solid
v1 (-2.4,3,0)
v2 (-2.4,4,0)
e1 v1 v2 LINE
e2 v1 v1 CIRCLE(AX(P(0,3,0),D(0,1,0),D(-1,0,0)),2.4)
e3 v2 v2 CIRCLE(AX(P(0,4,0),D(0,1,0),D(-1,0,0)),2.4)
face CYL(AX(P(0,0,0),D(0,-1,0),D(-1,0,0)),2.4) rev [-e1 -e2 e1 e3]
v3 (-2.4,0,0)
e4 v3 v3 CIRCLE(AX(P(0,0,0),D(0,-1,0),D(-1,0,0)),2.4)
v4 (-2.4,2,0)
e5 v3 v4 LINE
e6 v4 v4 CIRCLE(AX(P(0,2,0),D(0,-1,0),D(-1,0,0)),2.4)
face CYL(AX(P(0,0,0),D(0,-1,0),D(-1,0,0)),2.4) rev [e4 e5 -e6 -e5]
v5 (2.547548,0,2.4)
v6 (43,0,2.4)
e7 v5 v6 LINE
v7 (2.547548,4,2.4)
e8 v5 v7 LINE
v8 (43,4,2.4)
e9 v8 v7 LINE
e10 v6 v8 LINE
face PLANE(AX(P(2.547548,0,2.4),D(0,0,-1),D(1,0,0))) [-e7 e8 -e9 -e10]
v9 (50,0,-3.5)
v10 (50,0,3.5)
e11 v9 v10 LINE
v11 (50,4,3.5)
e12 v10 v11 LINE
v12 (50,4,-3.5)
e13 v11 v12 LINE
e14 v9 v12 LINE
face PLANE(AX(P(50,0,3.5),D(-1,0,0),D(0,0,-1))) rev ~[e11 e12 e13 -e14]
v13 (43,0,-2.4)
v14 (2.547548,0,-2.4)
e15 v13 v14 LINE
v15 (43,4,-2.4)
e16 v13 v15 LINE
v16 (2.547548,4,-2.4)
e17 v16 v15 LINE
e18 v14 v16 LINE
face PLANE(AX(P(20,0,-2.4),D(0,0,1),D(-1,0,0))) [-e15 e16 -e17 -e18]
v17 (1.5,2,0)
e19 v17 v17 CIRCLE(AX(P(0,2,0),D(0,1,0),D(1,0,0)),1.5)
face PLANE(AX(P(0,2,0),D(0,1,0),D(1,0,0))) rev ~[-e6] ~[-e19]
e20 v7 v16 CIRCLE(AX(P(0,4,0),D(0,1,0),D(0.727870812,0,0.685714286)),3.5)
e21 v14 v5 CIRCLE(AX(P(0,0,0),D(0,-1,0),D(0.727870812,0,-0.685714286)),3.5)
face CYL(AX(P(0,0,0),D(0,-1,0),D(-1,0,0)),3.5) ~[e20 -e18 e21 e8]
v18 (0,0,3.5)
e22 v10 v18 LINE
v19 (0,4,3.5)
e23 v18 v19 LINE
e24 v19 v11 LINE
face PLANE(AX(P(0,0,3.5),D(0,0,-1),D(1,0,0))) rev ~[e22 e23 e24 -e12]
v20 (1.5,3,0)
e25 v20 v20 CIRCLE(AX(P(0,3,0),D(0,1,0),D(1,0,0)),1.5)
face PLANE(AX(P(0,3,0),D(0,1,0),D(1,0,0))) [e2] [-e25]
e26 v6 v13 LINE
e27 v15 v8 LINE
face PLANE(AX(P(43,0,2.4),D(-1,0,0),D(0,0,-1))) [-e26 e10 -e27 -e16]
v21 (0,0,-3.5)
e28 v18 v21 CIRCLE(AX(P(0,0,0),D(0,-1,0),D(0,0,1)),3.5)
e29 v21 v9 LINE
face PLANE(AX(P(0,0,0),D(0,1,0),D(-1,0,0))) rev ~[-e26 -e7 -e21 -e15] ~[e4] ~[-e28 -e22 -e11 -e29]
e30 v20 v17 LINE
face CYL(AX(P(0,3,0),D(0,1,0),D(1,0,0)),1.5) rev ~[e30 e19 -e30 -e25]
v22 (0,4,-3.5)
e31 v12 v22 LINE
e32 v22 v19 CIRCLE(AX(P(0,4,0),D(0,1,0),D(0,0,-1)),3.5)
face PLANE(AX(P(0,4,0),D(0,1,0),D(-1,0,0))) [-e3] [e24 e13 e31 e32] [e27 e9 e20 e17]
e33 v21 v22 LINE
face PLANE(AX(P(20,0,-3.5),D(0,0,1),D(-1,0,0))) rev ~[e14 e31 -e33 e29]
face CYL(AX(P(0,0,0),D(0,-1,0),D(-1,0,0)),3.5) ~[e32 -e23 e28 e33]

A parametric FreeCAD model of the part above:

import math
import FreeCAD as App
import Part
import Sketcher

V = App.Vector

doc = App.newDocument("Part")
body = doc.addObject("PartDesign::Body", "Body")

sketch1 = body.newObject("Sketcher::SketchObject", "Sketch")
sketch1.AttachmentSupport = (doc.getObject("XZ_Plane"), [""])
sketch1.MapMode = "FlatFace"
sketch1.addGeometry(Part.LineSegment(V(0, 3.5, 0), V(50, 3.5, 0)), False)
sketch1.addGeometry(Part.LineSegment(V(50, 3.5, 0), V(50, -3.5, 0)), False)
sketch1.addGeometry(Part.LineSegment(V(50, -3.5, 0), V(0, -3.5, 0)), False)
sketch1.addGeometry(Part.ArcOfCircle(Part.Circle(V(0, 0, 0), V(0, 0, 1), 3.5), math.radians(90), math.radians(270)), False)
sketch1.addGeometry(Part.Circle(V(0, 0, 0), V(0, 0, 1), 2.4), False)
sketch1.addGeometry(Part.ArcOfCircle(Part.Circle(V(0, 0, 0), V(0, 0, 1), 3.5), math.radians(-43), math.radians(43)), False)
sketch1.addGeometry(Part.LineSegment(V(2.5, -2.4, 0), V(43, -2.4, 0)), False)
sketch1.addGeometry(Part.LineSegment(V(43, -2.4, 0), V(43, 2.4, 0)), False)
sketch1.addGeometry(Part.LineSegment(V(43, 2.4, 0), V(2.5, 2.4, 0)), False)
sketch1.addConstraint(Sketcher.Constraint("Coincident", 0, 2, 1, 1))
sketch1.addConstraint(Sketcher.Constraint("Coincident", 1, 2, 2, 1))
sketch1.addConstraint(Sketcher.Constraint("Tangent", 2, 2, 3, 2))
sketch1.addConstraint(Sketcher.Constraint("Tangent", 3, 1, 0, 1))
sketch1.addConstraint(Sketcher.Constraint("Coincident", 5, 1, 6, 1))
sketch1.addConstraint(Sketcher.Constraint("Coincident", 6, 2, 7, 1))
sketch1.addConstraint(Sketcher.Constraint("Coincident", 7, 2, 8, 1))
sketch1.addConstraint(Sketcher.Constraint("Coincident", 8, 2, 5, 2))
sketch1.addConstraint(Sketcher.Constraint("Horizontal", 0))
sketch1.addConstraint(Sketcher.Constraint("Vertical", 1))
sketch1.addConstraint(Sketcher.Constraint("Horizontal", 2))
sketch1.addConstraint(Sketcher.Constraint("Horizontal", 6))
sketch1.addConstraint(Sketcher.Constraint("Vertical", 7))
sketch1.addConstraint(Sketcher.Constraint("Horizontal", 8))
sketch1.addConstraint(Sketcher.Constraint("Coincident", 3, 3, -1, 1))
sketch1.addConstraint(Sketcher.Constraint("Coincident", 4, 3, -1, 1))
sketch1.addConstraint(Sketcher.Constraint("Coincident", 5, 3, -1, 1))
sketch1.addConstraint(Sketcher.Constraint("Equal", 3, 5))
sketch1.addConstraint(Sketcher.Constraint("Vertical", 5, 1, 8, 2))
sketch1.addConstraint(Sketcher.Constraint("Diameter", 4, 4.8))
sketch1.addConstraint(Sketcher.Constraint("Radius", 3, 3.5))
sketch1.addConstraint(Sketcher.Constraint("DistanceX", 0, 1, 0, 2, 50.0))
sketch1.addConstraint(Sketcher.Constraint("DistanceY", 7, 1, 7, 2, 4.8))
sketch1.addConstraint(Sketcher.Constraint("DistanceX", 6, 2, 1, 2, 7.0))
pad1 = body.newObject("PartDesign::Pad", "Pad")
pad1.Profile = sketch1
pad1.Length = 4
pad1.Reversed = True

sketch2 = body.newObject("Sketcher::SketchObject", "Sketch001")
sketch2.AttachmentSupport = (doc.getObject("XZ_Plane"), [""])
sketch2.MapMode = "FlatFace"
sketch2.AttachmentOffset = App.Placement(V(0, 0, -3), App.Rotation())
sketch2.addGeometry(Part.Circle(V(0, 0, 0), V(0, 0, 1), 2.4), False)
sketch2.addGeometry(Part.Circle(V(0, 0, 0), V(0, 0, 1), 1.5), False)
sketch2.addConstraint(Sketcher.Constraint("Coincident", 0, 3, -1, 1))
sketch2.addConstraint(Sketcher.Constraint("Coincident", 1, 3, -1, 1))
sketch2.addConstraint(Sketcher.Constraint("Diameter", 1, 3.0))
sketch2.addConstraint(Sketcher.Constraint("Diameter", 0, 4.8))
pad2 = body.newObject("PartDesign::Pad", "Pad001")
pad2.Profile = sketch2
pad2.Length = 1

doc.recompute()
